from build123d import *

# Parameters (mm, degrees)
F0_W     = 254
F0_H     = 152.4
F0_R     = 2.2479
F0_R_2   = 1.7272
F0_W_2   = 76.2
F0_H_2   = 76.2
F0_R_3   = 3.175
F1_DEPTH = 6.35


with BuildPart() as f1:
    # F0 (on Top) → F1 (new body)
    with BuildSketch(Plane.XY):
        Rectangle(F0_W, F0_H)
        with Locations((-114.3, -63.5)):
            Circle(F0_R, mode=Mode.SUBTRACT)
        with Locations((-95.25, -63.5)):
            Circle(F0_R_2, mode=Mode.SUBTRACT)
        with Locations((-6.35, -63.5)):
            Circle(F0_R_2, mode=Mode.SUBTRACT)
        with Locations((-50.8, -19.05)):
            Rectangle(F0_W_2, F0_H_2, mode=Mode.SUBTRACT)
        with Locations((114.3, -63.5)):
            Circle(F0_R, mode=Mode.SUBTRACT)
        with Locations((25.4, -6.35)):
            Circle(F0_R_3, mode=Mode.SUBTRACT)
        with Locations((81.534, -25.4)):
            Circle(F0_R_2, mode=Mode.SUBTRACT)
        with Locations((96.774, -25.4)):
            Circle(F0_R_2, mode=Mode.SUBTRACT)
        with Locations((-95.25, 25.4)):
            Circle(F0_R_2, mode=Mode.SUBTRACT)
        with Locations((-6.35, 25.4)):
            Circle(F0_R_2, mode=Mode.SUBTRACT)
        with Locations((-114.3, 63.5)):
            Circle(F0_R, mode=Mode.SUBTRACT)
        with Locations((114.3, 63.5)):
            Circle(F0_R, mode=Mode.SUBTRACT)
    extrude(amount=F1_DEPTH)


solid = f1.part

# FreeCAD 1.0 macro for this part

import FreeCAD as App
import Part
import Sketcher
Q = App.Units.Quantity


def add_polygon(sketch, points):
    """Adds a closed chain of lines whose ends are joined by coincident constraints."""
    first, n = sketch.GeometryCount, len(points)
    for a, b in zip(points, points[1:] + points[:1]):
        sketch.addGeometry(Part.LineSegment(App.Vector(*a, 0), App.Vector(*b, 0)), False)
    for i in range(n):
        sketch.addConstraint(Sketcher.Constraint("Coincident", first + i, 2, first + (i + 1) % n, 1))

doc = App.newDocument("Part")
params = doc.addObject("Spreadsheet::Sheet", "Params")
for row, (alias, value) in enumerate([
    ("sketch1_diameter", "0.25 in"),
    ("sketch1_width", "10 in"),
    ("sketch1_width2", "3 in"),
    ("sketch1_height", "6 in"),
    ("sketch1_diameter2", "0.177 in"),
    ("pad1_length", "0.25 in"),
], start=1):
    params.set(f"A{row}", alias)
    params.set(f"B{row}", "=" + value)
    params.setAlias(f"B{row}", alias)

body = doc.addObject("PartDesign::Body", "Body")

# Sketch on XY plane
sketch1 = body.newObject("Sketcher::SketchObject", "Sketch")
sketch1.AttachmentSupport = (doc.getObject("XY_Plane"), [""])
sketch1.MapMode = "FlatFace"
add_polygon(sketch1, [(-127, 76.2), (-127, -76.2), (127, -76.2), (127, 76.2)])  # lines 0-3
sketch1.addGeometry(Part.Circle(App.Vector(-114.3, -63.5, 0), App.Vector(0, 0, 1), 2.2), False)  # 4
sketch1.addGeometry(Part.Circle(App.Vector(-95.2, -63.5, 0), App.Vector(0, 0, 1), 1.7), False)  # 5
sketch1.addGeometry(Part.Circle(App.Vector(-6.3, -63.5, 0), App.Vector(0, 0, 1), 1.7), False)  # 6
add_polygon(sketch1, [(-12.7, -57.1), (-88.9, -57.1), (-88.9, 19.1), (-12.7, 19.1)])  # lines 7-10
sketch1.addGeometry(Part.Circle(App.Vector(114.3, -63.5, 0), App.Vector(0, 0, 1), 2.2), False)  # 11
sketch1.addGeometry(Part.Circle(App.Vector(25.4, -6.3, 0), App.Vector(0, 0, 1), 3.2), False)  # 12
sketch1.addGeometry(Part.Circle(App.Vector(81.5, -25.4, 0), App.Vector(0, 0, 1), 1.7), False)  # 13
sketch1.addGeometry(Part.Circle(App.Vector(96.8, -25.4, 0), App.Vector(0, 0, 1), 1.7), False)  # 14
sketch1.addGeometry(Part.Circle(App.Vector(-95.2, 25.4, 0), App.Vector(0, 0, 1), 1.7), False)  # 15
sketch1.addGeometry(Part.Circle(App.Vector(-6.3, 25.4, 0), App.Vector(0, 0, 1), 1.7), False)  # 16
sketch1.addGeometry(Part.Circle(App.Vector(-114.3, 63.5, 0), App.Vector(0, 0, 1), 2.2), False)  # 17
sketch1.addGeometry(Part.Circle(App.Vector(114.3, 63.5, 0), App.Vector(0, 0, 1), 2.2), False)  # 18
sketch1.addConstraint([
    Sketcher.Constraint("Vertical", 0),
    Sketcher.Constraint("Horizontal", 1),
    Sketcher.Constraint("Vertical", 2),
    Sketcher.Constraint("Horizontal", 3),
    Sketcher.Constraint("Horizontal", 7),
    Sketcher.Constraint("Vertical", 8),
    Sketcher.Constraint("Horizontal", 9),
    Sketcher.Constraint("Vertical", 10),
    Sketcher.Constraint("Equal", 5, 6),
    Sketcher.Constraint("Equal", 4, 11),
    Sketcher.Constraint("Equal", 6, 13),
    Sketcher.Constraint("Equal", 13, 14),
    Sketcher.Constraint("Equal", 14, 15),
    Sketcher.Constraint("Equal", 15, 16),
    Sketcher.Constraint("Equal", 11, 17),
    Sketcher.Constraint("Equal", 17, 18),
    Sketcher.Constraint("Symmetric", 11, 3, 17, 3, -1, 1),
    Sketcher.Constraint("Symmetric", 4, 3, 18, 3, -1, 1),
    Sketcher.Constraint("Symmetric", 0, 2, 2, 2, -1, 1),
    Sketcher.Constraint("Symmetric", 4, 3, 11, 3, -2),
    Sketcher.Constraint("Horizontal", 4, 3, 5, 3),
    Sketcher.Constraint("Horizontal", 5, 3, 6, 3),
    Sketcher.Constraint("Horizontal", 13, 3, 14, 3),
    Sketcher.Constraint("Horizontal", 15, 3, 16, 3),
    Sketcher.Constraint("Vertical", 5, 3, 15, 3),
    Sketcher.Constraint("Vertical", 6, 3, 16, 3),
    Sketcher.Constraint("Equal", 9, 8),
    Sketcher.Constraint("Diameter", 12, Q("0.25 in")),
    Sketcher.Constraint("DistanceX", 1, 1, 1, 2, Q("10 in")),
    Sketcher.Constraint("DistanceX", 7, 2, 7, 1, Q("3 in")),
    Sketcher.Constraint("DistanceY", 0, 2, 0, 1, Q("6 in")),
    Sketcher.Constraint("Diameter", 4, Q("0.177 in")),
    Sketcher.Constraint("Diameter", 5, Q("0.136 in")),
    Sketcher.Constraint("DistanceX", -1, 1, 12, 3, Q("1 in")),
    Sketcher.Constraint("DistanceY", 13, 3, -1, 1, Q("1 in")),
    Sketcher.Constraint("DistanceY", -1, 1, 15, 3, Q("1 in")),
    Sketcher.Constraint("DistanceX", 4, 3, 11, 3, Q("9 in")),
    Sketcher.Constraint("DistanceY", 4, 3, 17, 3, Q("5 in")),
    Sketcher.Constraint("DistanceX", 4, 3, 7, 2, Q("1 in")),
    Sketcher.Constraint("DistanceY", 12, 3, 9, 2, Q("1 in")),
    Sketcher.Constraint("DistanceX", 5, 3, 6, 3, Q("3.5 in")),
    Sketcher.Constraint("DistanceX", 13, 3, 14, 3, Q("0.6 in")),
    Sketcher.Constraint("DistanceX", 5, 3, -1, 1, Q("3.75 in")),
    Sketcher.Constraint("DistanceY", 12, 3, -1, 1, Q("0.25 in")),
    Sketcher.Constraint("DistanceX", -1, 1, 13, 3, Q("3.21 in")),
])
sketch1.setExpression("Constraints[35]", "Params.sketch1_diameter")
sketch1.setExpression("Constraints[36]", "Params.sketch1_width")
sketch1.setExpression("Constraints[37]", "Params.sketch1_width2")
sketch1.setExpression("Constraints[38]", "Params.sketch1_height")
sketch1.setExpression("Constraints[39]", "Params.sketch1_diameter2")
pad1 = body.newObject("PartDesign::Pad", "Pad")
pad1.Profile = sketch1
pad1.setExpression("Length", "Params.pad1_length")

doc.recompute()
